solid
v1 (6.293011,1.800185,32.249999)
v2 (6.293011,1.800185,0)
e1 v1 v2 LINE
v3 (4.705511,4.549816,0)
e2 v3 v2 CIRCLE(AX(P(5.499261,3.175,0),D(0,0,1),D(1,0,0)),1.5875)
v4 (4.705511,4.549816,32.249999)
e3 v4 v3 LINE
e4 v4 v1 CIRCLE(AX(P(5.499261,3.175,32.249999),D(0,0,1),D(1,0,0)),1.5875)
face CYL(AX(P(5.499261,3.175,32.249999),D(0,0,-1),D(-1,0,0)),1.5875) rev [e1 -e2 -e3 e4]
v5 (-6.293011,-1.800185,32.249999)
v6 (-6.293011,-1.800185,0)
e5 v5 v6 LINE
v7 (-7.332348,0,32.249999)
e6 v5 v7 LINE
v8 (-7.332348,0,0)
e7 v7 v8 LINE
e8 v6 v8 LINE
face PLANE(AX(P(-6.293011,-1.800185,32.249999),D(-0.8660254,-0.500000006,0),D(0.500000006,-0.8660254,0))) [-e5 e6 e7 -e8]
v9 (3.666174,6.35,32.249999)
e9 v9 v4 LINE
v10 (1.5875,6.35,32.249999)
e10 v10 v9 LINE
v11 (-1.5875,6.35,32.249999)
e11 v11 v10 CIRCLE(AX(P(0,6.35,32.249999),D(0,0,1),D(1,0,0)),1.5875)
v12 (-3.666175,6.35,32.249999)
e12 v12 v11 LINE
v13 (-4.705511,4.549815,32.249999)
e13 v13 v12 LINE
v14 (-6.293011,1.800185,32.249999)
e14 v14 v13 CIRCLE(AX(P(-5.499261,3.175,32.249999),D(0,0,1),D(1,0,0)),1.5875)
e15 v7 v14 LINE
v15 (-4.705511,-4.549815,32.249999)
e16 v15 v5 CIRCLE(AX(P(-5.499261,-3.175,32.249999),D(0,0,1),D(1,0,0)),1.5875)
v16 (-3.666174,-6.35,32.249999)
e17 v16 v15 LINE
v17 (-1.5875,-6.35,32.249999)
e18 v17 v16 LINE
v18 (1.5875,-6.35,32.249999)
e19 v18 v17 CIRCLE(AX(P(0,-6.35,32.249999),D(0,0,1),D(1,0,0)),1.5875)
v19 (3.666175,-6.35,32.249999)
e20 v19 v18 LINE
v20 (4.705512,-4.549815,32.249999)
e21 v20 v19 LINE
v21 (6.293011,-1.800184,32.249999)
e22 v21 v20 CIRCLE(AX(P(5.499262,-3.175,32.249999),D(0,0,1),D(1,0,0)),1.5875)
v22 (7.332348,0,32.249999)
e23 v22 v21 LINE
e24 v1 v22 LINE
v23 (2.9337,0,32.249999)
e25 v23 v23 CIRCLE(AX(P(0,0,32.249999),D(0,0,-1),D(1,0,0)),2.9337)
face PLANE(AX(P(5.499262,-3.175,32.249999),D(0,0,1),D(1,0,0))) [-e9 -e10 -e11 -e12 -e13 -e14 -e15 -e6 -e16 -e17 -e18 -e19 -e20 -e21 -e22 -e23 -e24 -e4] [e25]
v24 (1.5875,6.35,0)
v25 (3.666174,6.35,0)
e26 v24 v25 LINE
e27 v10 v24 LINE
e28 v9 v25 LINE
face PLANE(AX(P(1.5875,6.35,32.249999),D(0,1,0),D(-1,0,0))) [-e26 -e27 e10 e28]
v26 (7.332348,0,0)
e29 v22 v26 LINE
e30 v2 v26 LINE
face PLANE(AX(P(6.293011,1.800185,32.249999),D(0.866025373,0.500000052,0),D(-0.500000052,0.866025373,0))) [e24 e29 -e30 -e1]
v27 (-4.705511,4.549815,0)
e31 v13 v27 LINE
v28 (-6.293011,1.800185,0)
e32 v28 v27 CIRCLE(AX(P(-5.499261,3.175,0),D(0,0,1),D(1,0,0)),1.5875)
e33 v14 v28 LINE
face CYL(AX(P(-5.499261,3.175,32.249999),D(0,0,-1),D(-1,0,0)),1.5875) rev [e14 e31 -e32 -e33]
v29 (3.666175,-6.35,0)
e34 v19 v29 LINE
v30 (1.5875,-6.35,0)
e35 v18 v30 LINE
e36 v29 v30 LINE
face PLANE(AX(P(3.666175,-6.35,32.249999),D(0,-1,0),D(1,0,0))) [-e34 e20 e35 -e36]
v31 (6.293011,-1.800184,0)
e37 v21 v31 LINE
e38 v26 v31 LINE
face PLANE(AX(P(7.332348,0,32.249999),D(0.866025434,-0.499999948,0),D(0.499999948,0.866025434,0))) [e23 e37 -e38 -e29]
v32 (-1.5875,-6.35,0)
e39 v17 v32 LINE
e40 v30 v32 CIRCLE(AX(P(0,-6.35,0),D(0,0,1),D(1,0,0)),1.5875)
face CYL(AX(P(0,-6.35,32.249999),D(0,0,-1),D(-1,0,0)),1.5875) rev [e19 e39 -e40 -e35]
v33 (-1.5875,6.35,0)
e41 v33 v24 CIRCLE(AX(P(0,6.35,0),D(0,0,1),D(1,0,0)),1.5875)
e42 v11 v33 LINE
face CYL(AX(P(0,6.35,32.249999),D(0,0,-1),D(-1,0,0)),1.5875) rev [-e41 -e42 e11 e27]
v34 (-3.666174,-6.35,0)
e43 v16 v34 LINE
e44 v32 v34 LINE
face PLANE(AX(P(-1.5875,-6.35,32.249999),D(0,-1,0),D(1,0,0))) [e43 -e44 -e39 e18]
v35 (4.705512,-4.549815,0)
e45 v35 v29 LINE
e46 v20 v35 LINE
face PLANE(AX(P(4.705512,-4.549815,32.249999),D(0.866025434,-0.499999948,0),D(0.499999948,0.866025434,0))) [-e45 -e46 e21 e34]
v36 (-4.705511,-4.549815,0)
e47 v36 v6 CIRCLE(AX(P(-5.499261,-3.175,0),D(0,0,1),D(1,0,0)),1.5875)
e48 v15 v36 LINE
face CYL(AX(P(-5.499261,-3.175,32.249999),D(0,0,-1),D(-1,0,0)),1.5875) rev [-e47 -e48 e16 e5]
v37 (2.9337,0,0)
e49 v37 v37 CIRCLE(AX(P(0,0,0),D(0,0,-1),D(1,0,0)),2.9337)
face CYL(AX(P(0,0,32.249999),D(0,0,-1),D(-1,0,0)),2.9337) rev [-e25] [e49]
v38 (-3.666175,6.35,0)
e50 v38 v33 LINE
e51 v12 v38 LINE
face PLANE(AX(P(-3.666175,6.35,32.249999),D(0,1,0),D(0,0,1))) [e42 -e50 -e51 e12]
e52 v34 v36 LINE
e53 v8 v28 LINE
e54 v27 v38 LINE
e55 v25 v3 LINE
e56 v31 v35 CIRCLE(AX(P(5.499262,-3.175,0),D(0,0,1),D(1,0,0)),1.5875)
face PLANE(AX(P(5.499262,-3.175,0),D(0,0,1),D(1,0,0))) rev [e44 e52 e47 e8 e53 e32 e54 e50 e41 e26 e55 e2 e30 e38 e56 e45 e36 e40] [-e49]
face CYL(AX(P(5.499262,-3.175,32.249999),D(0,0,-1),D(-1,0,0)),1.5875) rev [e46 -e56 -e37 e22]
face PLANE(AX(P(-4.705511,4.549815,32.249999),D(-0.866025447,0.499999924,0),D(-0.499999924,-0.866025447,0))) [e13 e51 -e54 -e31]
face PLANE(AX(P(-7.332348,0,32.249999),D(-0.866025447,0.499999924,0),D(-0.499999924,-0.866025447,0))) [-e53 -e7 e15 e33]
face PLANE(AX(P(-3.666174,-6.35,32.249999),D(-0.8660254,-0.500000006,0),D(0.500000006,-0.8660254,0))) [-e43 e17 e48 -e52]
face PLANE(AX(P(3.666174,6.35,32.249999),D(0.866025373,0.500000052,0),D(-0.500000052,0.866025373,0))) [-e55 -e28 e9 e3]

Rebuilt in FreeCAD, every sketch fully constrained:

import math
import FreeCAD as App
import Part
import Sketcher
from FreeCAD import Vector
Q = App.Units.Quantity

doc = App.newDocument("Part")
params = doc.addObject("Spreadsheet::Sheet", "Params")
for row, (alias, value) in enumerate([
    ("sketch1_diameter", "0.231 in"),
    ("sketch1_radius", "0.0625 in"),
    ("pad1_length", "32.249999 mm"),
], start=1):
    params.set(f"A{row}", alias)
    params.set(f"B{row}", "=" + value)
    params.setAlias(f"B{row}", alias)

body = doc.addObject("PartDesign::Body", "Body")

# Sketch on XY plane
sketch1 = body.newObject("Sketcher::SketchObject", "Sketch")
sketch1.AttachmentSupport = (doc.getObject("XY_Plane"), [""])
sketch1.MapMode = "FlatFace"
sketch1.addGeometry(Part.LineSegment(Vector(4.705512, -4.549815, 0), Vector(3.666175, -6.35, 0)), False)
sketch1.addGeometry(Part.LineSegment(Vector(3.666175, -6.35, 0), Vector(1.5875, -6.35, 0)), False)
sketch1.addGeometry(Part.ArcOfCircle(Part.Circle(Vector(0, -6.35, 0), Vector(0, 0, 1), 1.5875), math.radians(0), math.radians(180)), False)
sketch1.addGeometry(Part.LineSegment(Vector(-1.5875, -6.35, 0), Vector(-3.666174, -6.35, 0)), False)
sketch1.addGeometry(Part.LineSegment(Vector(-3.666174, -6.35, 0), Vector(-4.705511, -4.549815, 0)), False)
sketch1.addGeometry(Part.ArcOfCircle(Part.Circle(Vector(-5.499261, -3.175, 0), Vector(0, 0, 1), 1.5875), math.radians(-60), math.radians(120)), False)
sketch1.addGeometry(Part.LineSegment(Vector(-6.293011, -1.800185, 0), Vector(-7.332348, 0, 0)), False)
sketch1.addGeometry(Part.LineSegment(Vector(-7.332348, 0, 0), Vector(-6.293011, 1.800185, 0)), False)
sketch1.addGeometry(Part.ArcOfCircle(Part.Circle(Vector(-5.499261, 3.175, 0), Vector(0, 0, 1), 1.5875), math.radians(-119.999995), math.radians(60.000005)), False)
sketch1.addGeometry(Part.LineSegment(Vector(-4.705511, 4.549815, 0), Vector(-3.666175, 6.35, 0)), False)
sketch1.addGeometry(Part.LineSegment(Vector(-3.666175, 6.35, 0), Vector(-1.5875, 6.35, 0)), False)
sketch1.addGeometry(Part.ArcOfCircle(Part.Circle(Vector(0, 6.35, 0), Vector(0, 0, 1), 1.5875), math.radians(180), math.radians(360)), False)
sketch1.addGeometry(Part.LineSegment(Vector(1.5875, 6.35, 0), Vector(3.666174, 6.35, 0)), False)
sketch1.addGeometry(Part.LineSegment(Vector(3.666174, 6.35, 0), Vector(4.705511, 4.549816, 0)), False)
sketch1.addGeometry(Part.ArcOfCircle(Part.Circle(Vector(5.499261, 3.175, 0), Vector(0, 0, 1), 1.5875), math.radians(120.000003), math.radians(300.000003)), False)
sketch1.addGeometry(Part.LineSegment(Vector(6.293011, 1.800185, 0), Vector(7.332348, 0, 0)), False)
sketch1.addGeometry(Part.LineSegment(Vector(7.332348, 0, 0), Vector(6.293011, -1.800184, 0)), False)
sketch1.addGeometry(Part.ArcOfCircle(Part.Circle(Vector(5.499262, -3.175, 0), Vector(0, 0, 1), 1.5875), math.radians(60.000003), math.radians(240.000004)), False)
sketch1.addGeometry(Part.Circle(Vector(0, 0, 0), Vector(0, 0, 1), 2.9337), False)
sketch1.addConstraint(Sketcher.Constraint("Coincident", 0, 2, 1, 1))
sketch1.addConstraint(Sketcher.Constraint("Coincident", 1, 2, 2, 1))
sketch1.addConstraint(Sketcher.Constraint("Coincident", 2, 2, 3, 1))
sketch1.addConstraint(Sketcher.Constraint("Coincident", 3, 2, 4, 1))
sketch1.addConstraint(Sketcher.Constraint("Coincident", 4, 2, 5, 1))
sketch1.addConstraint(Sketcher.Constraint("Coincident", 5, 2, 6, 1))
sketch1.addConstraint(Sketcher.Constraint("Coincident", 6, 2, 7, 1))
sketch1.addConstraint(Sketcher.Constraint("Coincident", 7, 2, 8, 1))
sketch1.addConstraint(Sketcher.Constraint("Coincident", 8, 2, 9, 1))
sketch1.addConstraint(Sketcher.Constraint("Coincident", 9, 2, 10, 1))
sketch1.addConstraint(Sketcher.Constraint("Coincident", 10, 2, 11, 1))
sketch1.addConstraint(Sketcher.Constraint("Coincident", 11, 2, 12, 1))
sketch1.addConstraint(Sketcher.Constraint("Coincident", 12, 2, 13, 1))
sketch1.addConstraint(Sketcher.Constraint("Coincident", 13, 2, 14, 1))
sketch1.addConstraint(Sketcher.Constraint("Coincident", 14, 2, 15, 1))
sketch1.addConstraint(Sketcher.Constraint("Coincident", 15, 2, 16, 1))
sketch1.addConstraint(Sketcher.Constraint("Coincident", 16, 2, 17, 1))
sketch1.addConstraint(Sketcher.Constraint("Coincident", 17, 2, 0, 1))
sketch1.addConstraint(Sketcher.Constraint("Horizontal", 1))
sketch1.addConstraint(Sketcher.Constraint("Horizontal", 3))
sketch1.addConstraint(Sketcher.Constraint("Horizontal", 10))
sketch1.addConstraint(Sketcher.Constraint("Horizontal", 12))
sketch1.addConstraint(Sketcher.Constraint("Coincident", 18, 3, -1, 1))
sketch1.addConstraint(Sketcher.Constraint("Equal", 2, 5))
sketch1.addConstraint(Sketcher.Constraint("Equal", 5, 8))
sketch1.addConstraint(Sketcher.Constraint("Equal", 8, 11))
sketch1.addConstraint(Sketcher.Constraint("Equal", 11, 14))
sketch1.addConstraint(Sketcher.Constraint("Equal", 14, 17))
sketch1.addConstraint(Sketcher.Constraint("Symmetric", 2, 3, 11, 3, -1, 1))
sketch1.addConstraint(Sketcher.Constraint("Symmetric", 5, 3, 14, 3, -1, 1))
sketch1.addConstraint(Sketcher.Constraint("Symmetric", 8, 3, 17, 3, -1, 1))
sketch1.addConstraint(Sketcher.Constraint("Symmetric", 0, 2, 9, 2, -1, 1))
sketch1.addConstraint(Sketcher.Constraint("Symmetric", 3, 2, 12, 2, -1, 1))
sketch1.addConstraint(Sketcher.Constraint("Symmetric", 6, 2, 15, 2, -1, 1))
sketch1.addConstraint(Sketcher.Constraint("Symmetric", 8, 3, 14, 3, -2))
sketch1.addConstraint(Sketcher.Constraint("Symmetric", 1, 2, 2, 2, -2))
sketch1.addConstraint(Sketcher.Constraint("PointOnObject", 6, 2, -1))
sketch1.addConstraint(Sketcher.Constraint("Parallel", 4, 6))
sketch1.addConstraint(Sketcher.Constraint("Parallel", 0, 7))
sketch1.addConstraint(Sketcher.Constraint("Parallel", 7, 9))
sketch1.addConstraint(Sketcher.Constraint("Parallel", 6, 13))
sketch1.addConstraint(Sketcher.Constraint("Parallel", 13, 15))
sketch1.addConstraint(Sketcher.Constraint("Parallel", 9, 16))
sketch1.addConstraint(Sketcher.Constraint("Horizontal", 2, 3, 0, 2))
sketch1.addConstraint(Sketcher.Constraint("Horizontal", 8, 2, 13, 2))
sketch1.addConstraint(Sketcher.Constraint("Horizontal", 7, 2, 14, 2))
sketch1.addConstraint(Sketcher.Constraint("Equal", 4, 6))
sketch1.addConstraint(Sketcher.Constraint("Diameter", 18, Q("0.231 in")))
sketch1.addConstraint(Sketcher.Constraint("Angle", 0, Q("-119.999997 deg")))
sketch1.addConstraint(Sketcher.Constraint("Radius", 2, Q("0.0625 in")))
sketch1.addConstraint(Sketcher.Constraint("DistanceY", 2, 3, 11, 3, Q("0.5 in")))
sketch1.addConstraint(Sketcher.Constraint("DistanceY", 5, 3, 8, 3, Q("0.25 in")))
sketch1.addConstraint(Sketcher.Constraint("DistanceX", 5, 3, 4, 2, Q("0.03125 in")))
sketch1.addConstraint(Sketcher.Constraint("DistanceX", 1, 2, 1, 1, 2.078674))
sketch1.setExpression("Constraints[47]", "Params.sketch1_diameter")
sketch1.setExpression("Constraints[49]", "Params.sketch1_radius")
pad1 = body.newObject("PartDesign::Pad", "Pad")
pad1.Profile = sketch1
pad1.setExpression("Length", "Params.pad1_length")

doc.recompute()
